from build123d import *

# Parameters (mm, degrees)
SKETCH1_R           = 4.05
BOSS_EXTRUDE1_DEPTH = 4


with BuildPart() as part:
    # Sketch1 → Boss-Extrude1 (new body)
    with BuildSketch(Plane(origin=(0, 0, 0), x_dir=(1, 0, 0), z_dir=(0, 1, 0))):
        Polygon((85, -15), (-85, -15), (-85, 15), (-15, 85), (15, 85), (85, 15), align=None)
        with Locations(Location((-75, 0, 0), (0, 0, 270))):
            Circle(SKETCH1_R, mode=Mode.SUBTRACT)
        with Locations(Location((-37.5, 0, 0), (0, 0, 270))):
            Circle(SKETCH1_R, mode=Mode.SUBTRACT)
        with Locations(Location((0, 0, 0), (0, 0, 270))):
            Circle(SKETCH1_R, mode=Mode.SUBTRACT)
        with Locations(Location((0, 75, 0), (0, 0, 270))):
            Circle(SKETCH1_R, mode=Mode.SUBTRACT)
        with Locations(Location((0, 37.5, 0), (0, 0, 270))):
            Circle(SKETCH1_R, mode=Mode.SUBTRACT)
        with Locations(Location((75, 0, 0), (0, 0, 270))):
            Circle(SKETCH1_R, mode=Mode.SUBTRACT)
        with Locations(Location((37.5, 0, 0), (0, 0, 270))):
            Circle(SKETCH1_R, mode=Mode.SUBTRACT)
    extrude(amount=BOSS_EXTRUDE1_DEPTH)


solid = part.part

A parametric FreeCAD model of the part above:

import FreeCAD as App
import Part
import Sketcher
from FreeCAD import Vector
Q = App.Units.Quantity


def add_polygon(sketch, points):
    """Adds a closed chain of lines whose ends are joined by coincident constraints."""
    first, n = sketch.GeometryCount, len(points)
    for a, b in zip(points, points[1:] + points[:1]):
        sketch.addGeometry(Part.LineSegment(App.Vector(*a, 0), App.Vector(*b, 0)), False)
    for i in range(n):
        sketch.addConstraint(Sketcher.Constraint("Coincident", first + i, 2, first + (i + 1) % n, 1))

doc = App.newDocument("Part")
body = doc.addObject("PartDesign::Body", "Body")

sketch1 = body.newObject("Sketcher::SketchObject", "Sketch")
sketch1.AttachmentSupport = (doc.getObject("XZ_Plane"), [""])
sketch1.MapMode = "FlatFace"
add_polygon(sketch1, [(-85, 15), (85, 15), (85, -15), (15, -85), (-15, -85), (-85, -15)])
sketch1.addGeometry(Part.Circle(Vector(75, 0, 0), Vector(0, 0, 1), 4.05), False)
sketch1.addGeometry(Part.Circle(Vector(37.5, 0, 0), Vector(0, 0, 1), 4.05), False)
sketch1.addGeometry(Part.Circle(Vector(0, 0, 0), Vector(0, 0, 1), 4.05), False)
sketch1.addGeometry(Part.Circle(Vector(-37.5, 0, 0), Vector(0, 0, 1), 4.05), False)
sketch1.addGeometry(Part.Circle(Vector(-75, 0, 0), Vector(0, 0, 1), 4.05), False)
sketch1.addGeometry(Part.Circle(Vector(0, -37.5, 0), Vector(0, 0, 1), 4.05), False)
sketch1.addGeometry(Part.Circle(Vector(0, -75, 0), Vector(0, 0, 1), 4.05), False)
sketch1.addConstraint(Sketcher.Constraint("Horizontal", 0))
sketch1.addConstraint(Sketcher.Constraint("Vertical", 1))
sketch1.addConstraint(Sketcher.Constraint("Horizontal", 3))
sketch1.addConstraint(Sketcher.Constraint("Vertical", 5))
sketch1.addConstraint(Sketcher.Constraint("Coincident", 8, 3, -1, 1))
sketch1.addConstraint(Sketcher.Constraint("Equal", 6, 7))
sketch1.addConstraint(Sketcher.Constraint("Equal", 7, 8))
sketch1.addConstraint(Sketcher.Constraint("Equal", 8, 9))
sketch1.addConstraint(Sketcher.Constraint("Equal", 9, 10))
sketch1.addConstraint(Sketcher.Constraint("Equal", 10, 11))
sketch1.addConstraint(Sketcher.Constraint("Equal", 11, 12))
sketch1.addConstraint(Sketcher.Constraint("Symmetric", 7, 3, 9, 3, -1, 1))
sketch1.addConstraint(Sketcher.Constraint("Symmetric", 6, 3, 10, 3, -1, 1))
sketch1.addConstraint(Sketcher.Constraint("Symmetric", 0, 2, 4, 2, -1, 1))
sketch1.addConstraint(Sketcher.Constraint("PointOnObject", 6, 3, -1))
sketch1.addConstraint(Sketcher.Constraint("PointOnObject", 7, 3, -1))
sketch1.addConstraint(Sketcher.Constraint("PointOnObject", 11, 3, -2))
sketch1.addConstraint(Sketcher.Constraint("PointOnObject", 12, 3, -2))
sketch1.addConstraint(Sketcher.Constraint("Perpendicular", 2, 4))
sketch1.addConstraint(Sketcher.Constraint("Horizontal", 1, 2, 4, 2))
sketch1.addConstraint(Sketcher.Constraint("Equal", 3, 1))
sketch1.addConstraint(Sketcher.Constraint("Equal", 2, 4))
sketch1.addConstraint(Sketcher.Constraint("Diameter", 6, Q("8.1 mm")))
sketch1.addConstraint(Sketcher.Constraint("DistanceX", 0, 1, 0, 2, Q("170 mm")))
sketch1.addConstraint(Sketcher.Constraint("DistanceX", 3, 2, 3, 1, Q("30 mm")))
sketch1.addConstraint(Sketcher.Constraint("DistanceX", -1, 1, 6, 3, Q("75 mm")))
sketch1.addConstraint(Sketcher.Constraint("DistanceY", 12, 3, -1, 1, Q("75 mm")))
sketch1.addConstraint(Sketcher.Constraint("DistanceX", 9, 3, 7, 3, Q("75 mm")))
sketch1.addConstraint(Sketcher.Constraint("DistanceY", 11, 3, -1, 1, Q("37.5 mm")))
pad1 = body.newObject("PartDesign::Pad", "Pad")
pad1.Profile = sketch1
pad1.Length = 4
pad1.Reversed = True

doc.recompute()
